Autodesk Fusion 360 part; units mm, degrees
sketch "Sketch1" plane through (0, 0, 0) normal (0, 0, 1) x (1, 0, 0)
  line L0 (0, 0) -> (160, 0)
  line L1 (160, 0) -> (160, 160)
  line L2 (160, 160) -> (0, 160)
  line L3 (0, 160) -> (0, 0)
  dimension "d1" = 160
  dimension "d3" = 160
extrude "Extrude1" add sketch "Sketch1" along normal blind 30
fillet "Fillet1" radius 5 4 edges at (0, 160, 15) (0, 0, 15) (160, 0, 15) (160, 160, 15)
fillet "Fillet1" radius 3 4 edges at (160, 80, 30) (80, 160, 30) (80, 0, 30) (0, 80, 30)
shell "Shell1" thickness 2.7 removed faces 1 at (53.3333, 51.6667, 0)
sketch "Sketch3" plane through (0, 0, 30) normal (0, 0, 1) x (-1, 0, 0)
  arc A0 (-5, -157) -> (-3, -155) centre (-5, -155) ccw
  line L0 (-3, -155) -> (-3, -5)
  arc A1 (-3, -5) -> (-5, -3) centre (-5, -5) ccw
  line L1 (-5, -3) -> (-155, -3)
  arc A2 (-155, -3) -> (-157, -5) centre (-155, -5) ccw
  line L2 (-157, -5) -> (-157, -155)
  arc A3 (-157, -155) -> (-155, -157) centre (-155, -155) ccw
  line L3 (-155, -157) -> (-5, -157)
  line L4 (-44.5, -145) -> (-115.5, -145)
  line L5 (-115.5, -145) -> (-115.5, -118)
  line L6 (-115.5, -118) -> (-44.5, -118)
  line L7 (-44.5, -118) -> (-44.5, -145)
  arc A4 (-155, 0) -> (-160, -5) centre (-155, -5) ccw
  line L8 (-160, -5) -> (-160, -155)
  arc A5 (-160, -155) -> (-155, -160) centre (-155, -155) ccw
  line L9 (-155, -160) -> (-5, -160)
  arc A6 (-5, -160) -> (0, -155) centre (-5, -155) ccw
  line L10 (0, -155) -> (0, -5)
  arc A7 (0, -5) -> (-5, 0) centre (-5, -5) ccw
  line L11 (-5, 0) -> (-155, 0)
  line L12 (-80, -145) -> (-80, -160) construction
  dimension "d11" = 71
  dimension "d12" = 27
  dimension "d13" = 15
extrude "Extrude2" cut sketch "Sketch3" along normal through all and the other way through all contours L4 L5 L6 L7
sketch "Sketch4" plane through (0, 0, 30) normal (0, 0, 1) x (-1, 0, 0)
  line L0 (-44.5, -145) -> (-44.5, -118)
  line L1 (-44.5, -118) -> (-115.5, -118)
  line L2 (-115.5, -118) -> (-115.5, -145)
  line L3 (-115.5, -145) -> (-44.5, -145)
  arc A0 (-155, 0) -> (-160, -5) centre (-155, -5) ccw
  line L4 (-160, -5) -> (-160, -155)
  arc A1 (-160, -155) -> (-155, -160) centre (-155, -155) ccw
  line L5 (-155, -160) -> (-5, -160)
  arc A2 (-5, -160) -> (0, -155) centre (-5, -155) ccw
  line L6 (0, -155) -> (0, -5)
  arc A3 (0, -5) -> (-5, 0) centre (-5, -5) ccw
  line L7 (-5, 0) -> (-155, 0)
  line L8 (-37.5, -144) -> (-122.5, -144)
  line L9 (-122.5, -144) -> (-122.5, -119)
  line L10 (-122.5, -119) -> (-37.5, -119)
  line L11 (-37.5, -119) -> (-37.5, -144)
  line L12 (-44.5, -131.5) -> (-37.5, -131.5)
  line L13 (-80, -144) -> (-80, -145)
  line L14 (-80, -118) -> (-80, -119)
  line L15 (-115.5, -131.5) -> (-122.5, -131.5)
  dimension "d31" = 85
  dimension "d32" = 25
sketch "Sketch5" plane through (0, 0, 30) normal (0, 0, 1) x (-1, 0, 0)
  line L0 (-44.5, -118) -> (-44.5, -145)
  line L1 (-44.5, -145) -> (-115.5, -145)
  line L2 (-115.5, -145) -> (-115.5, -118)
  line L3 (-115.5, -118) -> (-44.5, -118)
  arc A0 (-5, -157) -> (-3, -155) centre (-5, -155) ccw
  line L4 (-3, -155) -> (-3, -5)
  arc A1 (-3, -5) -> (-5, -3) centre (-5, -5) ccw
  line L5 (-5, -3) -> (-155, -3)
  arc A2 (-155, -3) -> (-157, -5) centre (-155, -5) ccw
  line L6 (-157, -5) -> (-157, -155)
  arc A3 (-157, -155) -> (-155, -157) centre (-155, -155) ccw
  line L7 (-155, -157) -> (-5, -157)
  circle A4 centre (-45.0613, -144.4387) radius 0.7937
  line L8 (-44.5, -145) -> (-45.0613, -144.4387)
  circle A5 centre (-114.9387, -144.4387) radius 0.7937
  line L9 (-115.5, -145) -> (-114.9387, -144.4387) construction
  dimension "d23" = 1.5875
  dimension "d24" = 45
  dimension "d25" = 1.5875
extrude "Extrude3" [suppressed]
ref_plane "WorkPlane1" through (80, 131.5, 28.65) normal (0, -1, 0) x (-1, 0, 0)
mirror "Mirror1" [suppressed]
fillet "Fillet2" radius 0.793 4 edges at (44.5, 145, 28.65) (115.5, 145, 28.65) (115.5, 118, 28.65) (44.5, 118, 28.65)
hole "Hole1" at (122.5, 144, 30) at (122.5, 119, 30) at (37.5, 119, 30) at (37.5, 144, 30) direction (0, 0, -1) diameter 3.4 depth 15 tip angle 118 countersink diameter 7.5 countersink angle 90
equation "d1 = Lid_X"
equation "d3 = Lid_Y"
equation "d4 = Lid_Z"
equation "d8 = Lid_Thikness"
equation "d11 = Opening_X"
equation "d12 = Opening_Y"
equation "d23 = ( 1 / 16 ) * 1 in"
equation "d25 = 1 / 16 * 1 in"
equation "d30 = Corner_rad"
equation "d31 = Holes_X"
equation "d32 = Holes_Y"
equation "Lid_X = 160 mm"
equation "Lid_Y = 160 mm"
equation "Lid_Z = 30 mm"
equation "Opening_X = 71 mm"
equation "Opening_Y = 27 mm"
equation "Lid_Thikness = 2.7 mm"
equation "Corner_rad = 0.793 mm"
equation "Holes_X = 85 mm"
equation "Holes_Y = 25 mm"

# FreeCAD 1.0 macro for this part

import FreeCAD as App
import Part
import Sketcher
from FreeCAD import Vector


def edges_at(feature, points):
    """Names of the edges that pass closest to the given points."""
    edges = feature.Shape.Edges
    near = lambda p: min(range(len(edges)), key=lambda i: edges[i].distToShape(Part.Vertex(*p))[0])
    return sorted({f"Edge{near(p) + 1}" for p in points})


def faces_at(feature, points):
    """Names of the faces that lie closest to the given points."""
    faces = feature.Shape.Faces
    near = lambda p: min(range(len(faces)), key=lambda i: faces[i].distToShape(Part.Vertex(*p))[0])
    return sorted({f"Face{near(p) + 1}" for p in points})


def add_polygon(sketch, points):
    """Adds a closed chain of lines whose ends are joined by coincident constraints."""
    first, n = sketch.GeometryCount, len(points)
    for a, b in zip(points, points[1:] + points[:1]):
        sketch.addGeometry(Part.LineSegment(App.Vector(*a, 0), App.Vector(*b, 0)), False)
    for i in range(n):
        sketch.addConstraint(Sketcher.Constraint("Coincident", first + i, 2, first + (i + 1) % n, 1))

doc = App.newDocument("Part")
body = doc.addObject("PartDesign::Body", "Body")

# Sketch on XY plane
sketch1 = body.newObject("Sketcher::SketchObject", "Sketch")
sketch1.AttachmentSupport = (doc.getObject("XY_Plane"), [""])
sketch1.MapMode = "FlatFace"
add_polygon(sketch1, [(0, 160), (0, 0), (160, 0), (160, 160)])  # lines 0-3
sketch1.addConstraint([
    Sketcher.Constraint("Vertical", 0),
    Sketcher.Constraint("Horizontal", 1),
    Sketcher.Constraint("Vertical", 2),
    Sketcher.Constraint("Horizontal", 3),
    Sketcher.Constraint("Coincident", 0, 2, -1, 1),
    Sketcher.Constraint("Equal", 3, 0),
    Sketcher.Constraint("DistanceX", 1, 1, 1, 2, 160.0),
])
pad1 = body.newObject("PartDesign::Pad", "Pad")
pad1.Profile = sketch1
pad1.Length = 30
doc.recompute()

fillet = body.newObject("PartDesign::Fillet", "Fillet")
fillet.Base = (pad1, edges_at(pad1, [
    (0, 160, 15),
    (0, 0, 15),
    (160, 0, 15),
    (160, 160, 15),
]))
fillet.Radius = 5
doc.recompute()

fillet2 = body.newObject("PartDesign::Fillet", "Fillet001")
fillet2.Base = (fillet, edges_at(fillet, [
    (160, 80, 30),
    (80, 160, 30),
    (80, 0, 30),
    (0, 80, 30),
]))
fillet2.Radius = 3
doc.recompute()

thickness = body.newObject("PartDesign::Thickness", "Thickness")
thickness.Base = (fillet2, faces_at(fillet2, [(53.333, 51.667, 0)]))
thickness.Value = 2.7
thickness.Reversed = True
thickness.Join = "Intersection"

# Sketch on XY plane
sketch2 = body.newObject("Sketcher::SketchObject", "Sketch001")
sketch2.AttachmentSupport = (doc.getObject("XY_Plane"), [""])
sketch2.MapMode = "FlatFace"
sketch2.AttachmentOffset = App.Placement(Vector(0, 0, 30), App.Rotation())
add_polygon(sketch2, [(116, 145), (44, 145), (44, 118), (116, 118)])  # lines 0-3
sketch2.addConstraint([
    Sketcher.Constraint("Horizontal", 0),
    Sketcher.Constraint("Vertical", 1),
    Sketcher.Constraint("Horizontal", 2),
    Sketcher.Constraint("Vertical", 3),
    Sketcher.Constraint("DistanceX", 0, 2, 0, 1, 71.0),
    Sketcher.Constraint("DistanceY", 1, 2, 1, 1, 27.0),
    Sketcher.Constraint("DistanceY", -1, 1, 0, 2, 145.0),
    Sketcher.Constraint("DistanceX", -1, 1, 0, 2, 44.5),
])
pocket1 = body.newObject("PartDesign::Pocket", "Pocket")
pocket1.Profile = sketch2
pocket1.Type = "ThroughAll"
pocket1.Midplane = True
doc.recompute()

fillet3 = body.newObject("PartDesign::Fillet", "Fillet002")
fillet3.Base = (pocket1, edges_at(pocket1, [
    (44.5, 145, 28.65),
    (115.5, 145, 28.65),
    (115.5, 118, 28.65),
    (44.5, 118, 28.65),
]))
fillet3.Radius = 0.793

# Sketch on XY plane
sketch3 = body.newObject("Sketcher::SketchObject", "Sketch002")
sketch3.AttachmentSupport = (doc.getObject("XY_Plane"), [""])
sketch3.MapMode = "FlatFace"
sketch3.AttachmentOffset = App.Placement(Vector(0, 0, 30), App.Rotation())
sketch3.addGeometry([
    Part.Circle(Vector(122.5, 144, 0), Vector(0, 0, 1), 1.7),
    Part.Circle(Vector(122.5, 119, 0), Vector(0, 0, 1), 1.7),
    Part.Circle(Vector(37.5, 119, 0), Vector(0, 0, 1), 1.7),
    Part.Circle(Vector(37.5, 144, 0), Vector(0, 0, 1), 1.7),
], False)
sketch3.addConstraint([
    Sketcher.Constraint("Equal", 0, 1),
    Sketcher.Constraint("Equal", 1, 2),
    Sketcher.Constraint("Equal", 2, 3),
    Sketcher.Constraint("Horizontal", 1, 3, 2, 3),
    Sketcher.Constraint("Horizontal", 0, 3, 3, 3),
    Sketcher.Constraint("Vertical", 0, 3, 1, 3),
    Sketcher.Constraint("Vertical", 2, 3, 3, 3),
    Sketcher.Constraint("Diameter", 0, 3.4),
    Sketcher.Constraint("DistanceY", -1, 1, 0, 3, 144.0),
    Sketcher.Constraint("DistanceY", -1, 1, 1, 3, 119.0),
    Sketcher.Constraint("DistanceX", 2, 3, 1, 3, 85.0),
    Sketcher.Constraint("DistanceX", -1, 1, 0, 3, 122.5),
])
doc.recompute()
hole = body.newObject("PartDesign::Hole", "Hole")
hole.Profile = sketch3
hole.ThreadType = "None"
hole.Diameter = 3.4
hole.DepthType = "Dimension"
hole.Depth = 15
hole.DrillPoint = "Angled"
hole.DrillPointAngle = 118
hole.HoleCutType = "Countersink"
hole.HoleCutDiameter = 7.5
hole.HoleCutCountersinkAngle = 90

doc.recompute()
